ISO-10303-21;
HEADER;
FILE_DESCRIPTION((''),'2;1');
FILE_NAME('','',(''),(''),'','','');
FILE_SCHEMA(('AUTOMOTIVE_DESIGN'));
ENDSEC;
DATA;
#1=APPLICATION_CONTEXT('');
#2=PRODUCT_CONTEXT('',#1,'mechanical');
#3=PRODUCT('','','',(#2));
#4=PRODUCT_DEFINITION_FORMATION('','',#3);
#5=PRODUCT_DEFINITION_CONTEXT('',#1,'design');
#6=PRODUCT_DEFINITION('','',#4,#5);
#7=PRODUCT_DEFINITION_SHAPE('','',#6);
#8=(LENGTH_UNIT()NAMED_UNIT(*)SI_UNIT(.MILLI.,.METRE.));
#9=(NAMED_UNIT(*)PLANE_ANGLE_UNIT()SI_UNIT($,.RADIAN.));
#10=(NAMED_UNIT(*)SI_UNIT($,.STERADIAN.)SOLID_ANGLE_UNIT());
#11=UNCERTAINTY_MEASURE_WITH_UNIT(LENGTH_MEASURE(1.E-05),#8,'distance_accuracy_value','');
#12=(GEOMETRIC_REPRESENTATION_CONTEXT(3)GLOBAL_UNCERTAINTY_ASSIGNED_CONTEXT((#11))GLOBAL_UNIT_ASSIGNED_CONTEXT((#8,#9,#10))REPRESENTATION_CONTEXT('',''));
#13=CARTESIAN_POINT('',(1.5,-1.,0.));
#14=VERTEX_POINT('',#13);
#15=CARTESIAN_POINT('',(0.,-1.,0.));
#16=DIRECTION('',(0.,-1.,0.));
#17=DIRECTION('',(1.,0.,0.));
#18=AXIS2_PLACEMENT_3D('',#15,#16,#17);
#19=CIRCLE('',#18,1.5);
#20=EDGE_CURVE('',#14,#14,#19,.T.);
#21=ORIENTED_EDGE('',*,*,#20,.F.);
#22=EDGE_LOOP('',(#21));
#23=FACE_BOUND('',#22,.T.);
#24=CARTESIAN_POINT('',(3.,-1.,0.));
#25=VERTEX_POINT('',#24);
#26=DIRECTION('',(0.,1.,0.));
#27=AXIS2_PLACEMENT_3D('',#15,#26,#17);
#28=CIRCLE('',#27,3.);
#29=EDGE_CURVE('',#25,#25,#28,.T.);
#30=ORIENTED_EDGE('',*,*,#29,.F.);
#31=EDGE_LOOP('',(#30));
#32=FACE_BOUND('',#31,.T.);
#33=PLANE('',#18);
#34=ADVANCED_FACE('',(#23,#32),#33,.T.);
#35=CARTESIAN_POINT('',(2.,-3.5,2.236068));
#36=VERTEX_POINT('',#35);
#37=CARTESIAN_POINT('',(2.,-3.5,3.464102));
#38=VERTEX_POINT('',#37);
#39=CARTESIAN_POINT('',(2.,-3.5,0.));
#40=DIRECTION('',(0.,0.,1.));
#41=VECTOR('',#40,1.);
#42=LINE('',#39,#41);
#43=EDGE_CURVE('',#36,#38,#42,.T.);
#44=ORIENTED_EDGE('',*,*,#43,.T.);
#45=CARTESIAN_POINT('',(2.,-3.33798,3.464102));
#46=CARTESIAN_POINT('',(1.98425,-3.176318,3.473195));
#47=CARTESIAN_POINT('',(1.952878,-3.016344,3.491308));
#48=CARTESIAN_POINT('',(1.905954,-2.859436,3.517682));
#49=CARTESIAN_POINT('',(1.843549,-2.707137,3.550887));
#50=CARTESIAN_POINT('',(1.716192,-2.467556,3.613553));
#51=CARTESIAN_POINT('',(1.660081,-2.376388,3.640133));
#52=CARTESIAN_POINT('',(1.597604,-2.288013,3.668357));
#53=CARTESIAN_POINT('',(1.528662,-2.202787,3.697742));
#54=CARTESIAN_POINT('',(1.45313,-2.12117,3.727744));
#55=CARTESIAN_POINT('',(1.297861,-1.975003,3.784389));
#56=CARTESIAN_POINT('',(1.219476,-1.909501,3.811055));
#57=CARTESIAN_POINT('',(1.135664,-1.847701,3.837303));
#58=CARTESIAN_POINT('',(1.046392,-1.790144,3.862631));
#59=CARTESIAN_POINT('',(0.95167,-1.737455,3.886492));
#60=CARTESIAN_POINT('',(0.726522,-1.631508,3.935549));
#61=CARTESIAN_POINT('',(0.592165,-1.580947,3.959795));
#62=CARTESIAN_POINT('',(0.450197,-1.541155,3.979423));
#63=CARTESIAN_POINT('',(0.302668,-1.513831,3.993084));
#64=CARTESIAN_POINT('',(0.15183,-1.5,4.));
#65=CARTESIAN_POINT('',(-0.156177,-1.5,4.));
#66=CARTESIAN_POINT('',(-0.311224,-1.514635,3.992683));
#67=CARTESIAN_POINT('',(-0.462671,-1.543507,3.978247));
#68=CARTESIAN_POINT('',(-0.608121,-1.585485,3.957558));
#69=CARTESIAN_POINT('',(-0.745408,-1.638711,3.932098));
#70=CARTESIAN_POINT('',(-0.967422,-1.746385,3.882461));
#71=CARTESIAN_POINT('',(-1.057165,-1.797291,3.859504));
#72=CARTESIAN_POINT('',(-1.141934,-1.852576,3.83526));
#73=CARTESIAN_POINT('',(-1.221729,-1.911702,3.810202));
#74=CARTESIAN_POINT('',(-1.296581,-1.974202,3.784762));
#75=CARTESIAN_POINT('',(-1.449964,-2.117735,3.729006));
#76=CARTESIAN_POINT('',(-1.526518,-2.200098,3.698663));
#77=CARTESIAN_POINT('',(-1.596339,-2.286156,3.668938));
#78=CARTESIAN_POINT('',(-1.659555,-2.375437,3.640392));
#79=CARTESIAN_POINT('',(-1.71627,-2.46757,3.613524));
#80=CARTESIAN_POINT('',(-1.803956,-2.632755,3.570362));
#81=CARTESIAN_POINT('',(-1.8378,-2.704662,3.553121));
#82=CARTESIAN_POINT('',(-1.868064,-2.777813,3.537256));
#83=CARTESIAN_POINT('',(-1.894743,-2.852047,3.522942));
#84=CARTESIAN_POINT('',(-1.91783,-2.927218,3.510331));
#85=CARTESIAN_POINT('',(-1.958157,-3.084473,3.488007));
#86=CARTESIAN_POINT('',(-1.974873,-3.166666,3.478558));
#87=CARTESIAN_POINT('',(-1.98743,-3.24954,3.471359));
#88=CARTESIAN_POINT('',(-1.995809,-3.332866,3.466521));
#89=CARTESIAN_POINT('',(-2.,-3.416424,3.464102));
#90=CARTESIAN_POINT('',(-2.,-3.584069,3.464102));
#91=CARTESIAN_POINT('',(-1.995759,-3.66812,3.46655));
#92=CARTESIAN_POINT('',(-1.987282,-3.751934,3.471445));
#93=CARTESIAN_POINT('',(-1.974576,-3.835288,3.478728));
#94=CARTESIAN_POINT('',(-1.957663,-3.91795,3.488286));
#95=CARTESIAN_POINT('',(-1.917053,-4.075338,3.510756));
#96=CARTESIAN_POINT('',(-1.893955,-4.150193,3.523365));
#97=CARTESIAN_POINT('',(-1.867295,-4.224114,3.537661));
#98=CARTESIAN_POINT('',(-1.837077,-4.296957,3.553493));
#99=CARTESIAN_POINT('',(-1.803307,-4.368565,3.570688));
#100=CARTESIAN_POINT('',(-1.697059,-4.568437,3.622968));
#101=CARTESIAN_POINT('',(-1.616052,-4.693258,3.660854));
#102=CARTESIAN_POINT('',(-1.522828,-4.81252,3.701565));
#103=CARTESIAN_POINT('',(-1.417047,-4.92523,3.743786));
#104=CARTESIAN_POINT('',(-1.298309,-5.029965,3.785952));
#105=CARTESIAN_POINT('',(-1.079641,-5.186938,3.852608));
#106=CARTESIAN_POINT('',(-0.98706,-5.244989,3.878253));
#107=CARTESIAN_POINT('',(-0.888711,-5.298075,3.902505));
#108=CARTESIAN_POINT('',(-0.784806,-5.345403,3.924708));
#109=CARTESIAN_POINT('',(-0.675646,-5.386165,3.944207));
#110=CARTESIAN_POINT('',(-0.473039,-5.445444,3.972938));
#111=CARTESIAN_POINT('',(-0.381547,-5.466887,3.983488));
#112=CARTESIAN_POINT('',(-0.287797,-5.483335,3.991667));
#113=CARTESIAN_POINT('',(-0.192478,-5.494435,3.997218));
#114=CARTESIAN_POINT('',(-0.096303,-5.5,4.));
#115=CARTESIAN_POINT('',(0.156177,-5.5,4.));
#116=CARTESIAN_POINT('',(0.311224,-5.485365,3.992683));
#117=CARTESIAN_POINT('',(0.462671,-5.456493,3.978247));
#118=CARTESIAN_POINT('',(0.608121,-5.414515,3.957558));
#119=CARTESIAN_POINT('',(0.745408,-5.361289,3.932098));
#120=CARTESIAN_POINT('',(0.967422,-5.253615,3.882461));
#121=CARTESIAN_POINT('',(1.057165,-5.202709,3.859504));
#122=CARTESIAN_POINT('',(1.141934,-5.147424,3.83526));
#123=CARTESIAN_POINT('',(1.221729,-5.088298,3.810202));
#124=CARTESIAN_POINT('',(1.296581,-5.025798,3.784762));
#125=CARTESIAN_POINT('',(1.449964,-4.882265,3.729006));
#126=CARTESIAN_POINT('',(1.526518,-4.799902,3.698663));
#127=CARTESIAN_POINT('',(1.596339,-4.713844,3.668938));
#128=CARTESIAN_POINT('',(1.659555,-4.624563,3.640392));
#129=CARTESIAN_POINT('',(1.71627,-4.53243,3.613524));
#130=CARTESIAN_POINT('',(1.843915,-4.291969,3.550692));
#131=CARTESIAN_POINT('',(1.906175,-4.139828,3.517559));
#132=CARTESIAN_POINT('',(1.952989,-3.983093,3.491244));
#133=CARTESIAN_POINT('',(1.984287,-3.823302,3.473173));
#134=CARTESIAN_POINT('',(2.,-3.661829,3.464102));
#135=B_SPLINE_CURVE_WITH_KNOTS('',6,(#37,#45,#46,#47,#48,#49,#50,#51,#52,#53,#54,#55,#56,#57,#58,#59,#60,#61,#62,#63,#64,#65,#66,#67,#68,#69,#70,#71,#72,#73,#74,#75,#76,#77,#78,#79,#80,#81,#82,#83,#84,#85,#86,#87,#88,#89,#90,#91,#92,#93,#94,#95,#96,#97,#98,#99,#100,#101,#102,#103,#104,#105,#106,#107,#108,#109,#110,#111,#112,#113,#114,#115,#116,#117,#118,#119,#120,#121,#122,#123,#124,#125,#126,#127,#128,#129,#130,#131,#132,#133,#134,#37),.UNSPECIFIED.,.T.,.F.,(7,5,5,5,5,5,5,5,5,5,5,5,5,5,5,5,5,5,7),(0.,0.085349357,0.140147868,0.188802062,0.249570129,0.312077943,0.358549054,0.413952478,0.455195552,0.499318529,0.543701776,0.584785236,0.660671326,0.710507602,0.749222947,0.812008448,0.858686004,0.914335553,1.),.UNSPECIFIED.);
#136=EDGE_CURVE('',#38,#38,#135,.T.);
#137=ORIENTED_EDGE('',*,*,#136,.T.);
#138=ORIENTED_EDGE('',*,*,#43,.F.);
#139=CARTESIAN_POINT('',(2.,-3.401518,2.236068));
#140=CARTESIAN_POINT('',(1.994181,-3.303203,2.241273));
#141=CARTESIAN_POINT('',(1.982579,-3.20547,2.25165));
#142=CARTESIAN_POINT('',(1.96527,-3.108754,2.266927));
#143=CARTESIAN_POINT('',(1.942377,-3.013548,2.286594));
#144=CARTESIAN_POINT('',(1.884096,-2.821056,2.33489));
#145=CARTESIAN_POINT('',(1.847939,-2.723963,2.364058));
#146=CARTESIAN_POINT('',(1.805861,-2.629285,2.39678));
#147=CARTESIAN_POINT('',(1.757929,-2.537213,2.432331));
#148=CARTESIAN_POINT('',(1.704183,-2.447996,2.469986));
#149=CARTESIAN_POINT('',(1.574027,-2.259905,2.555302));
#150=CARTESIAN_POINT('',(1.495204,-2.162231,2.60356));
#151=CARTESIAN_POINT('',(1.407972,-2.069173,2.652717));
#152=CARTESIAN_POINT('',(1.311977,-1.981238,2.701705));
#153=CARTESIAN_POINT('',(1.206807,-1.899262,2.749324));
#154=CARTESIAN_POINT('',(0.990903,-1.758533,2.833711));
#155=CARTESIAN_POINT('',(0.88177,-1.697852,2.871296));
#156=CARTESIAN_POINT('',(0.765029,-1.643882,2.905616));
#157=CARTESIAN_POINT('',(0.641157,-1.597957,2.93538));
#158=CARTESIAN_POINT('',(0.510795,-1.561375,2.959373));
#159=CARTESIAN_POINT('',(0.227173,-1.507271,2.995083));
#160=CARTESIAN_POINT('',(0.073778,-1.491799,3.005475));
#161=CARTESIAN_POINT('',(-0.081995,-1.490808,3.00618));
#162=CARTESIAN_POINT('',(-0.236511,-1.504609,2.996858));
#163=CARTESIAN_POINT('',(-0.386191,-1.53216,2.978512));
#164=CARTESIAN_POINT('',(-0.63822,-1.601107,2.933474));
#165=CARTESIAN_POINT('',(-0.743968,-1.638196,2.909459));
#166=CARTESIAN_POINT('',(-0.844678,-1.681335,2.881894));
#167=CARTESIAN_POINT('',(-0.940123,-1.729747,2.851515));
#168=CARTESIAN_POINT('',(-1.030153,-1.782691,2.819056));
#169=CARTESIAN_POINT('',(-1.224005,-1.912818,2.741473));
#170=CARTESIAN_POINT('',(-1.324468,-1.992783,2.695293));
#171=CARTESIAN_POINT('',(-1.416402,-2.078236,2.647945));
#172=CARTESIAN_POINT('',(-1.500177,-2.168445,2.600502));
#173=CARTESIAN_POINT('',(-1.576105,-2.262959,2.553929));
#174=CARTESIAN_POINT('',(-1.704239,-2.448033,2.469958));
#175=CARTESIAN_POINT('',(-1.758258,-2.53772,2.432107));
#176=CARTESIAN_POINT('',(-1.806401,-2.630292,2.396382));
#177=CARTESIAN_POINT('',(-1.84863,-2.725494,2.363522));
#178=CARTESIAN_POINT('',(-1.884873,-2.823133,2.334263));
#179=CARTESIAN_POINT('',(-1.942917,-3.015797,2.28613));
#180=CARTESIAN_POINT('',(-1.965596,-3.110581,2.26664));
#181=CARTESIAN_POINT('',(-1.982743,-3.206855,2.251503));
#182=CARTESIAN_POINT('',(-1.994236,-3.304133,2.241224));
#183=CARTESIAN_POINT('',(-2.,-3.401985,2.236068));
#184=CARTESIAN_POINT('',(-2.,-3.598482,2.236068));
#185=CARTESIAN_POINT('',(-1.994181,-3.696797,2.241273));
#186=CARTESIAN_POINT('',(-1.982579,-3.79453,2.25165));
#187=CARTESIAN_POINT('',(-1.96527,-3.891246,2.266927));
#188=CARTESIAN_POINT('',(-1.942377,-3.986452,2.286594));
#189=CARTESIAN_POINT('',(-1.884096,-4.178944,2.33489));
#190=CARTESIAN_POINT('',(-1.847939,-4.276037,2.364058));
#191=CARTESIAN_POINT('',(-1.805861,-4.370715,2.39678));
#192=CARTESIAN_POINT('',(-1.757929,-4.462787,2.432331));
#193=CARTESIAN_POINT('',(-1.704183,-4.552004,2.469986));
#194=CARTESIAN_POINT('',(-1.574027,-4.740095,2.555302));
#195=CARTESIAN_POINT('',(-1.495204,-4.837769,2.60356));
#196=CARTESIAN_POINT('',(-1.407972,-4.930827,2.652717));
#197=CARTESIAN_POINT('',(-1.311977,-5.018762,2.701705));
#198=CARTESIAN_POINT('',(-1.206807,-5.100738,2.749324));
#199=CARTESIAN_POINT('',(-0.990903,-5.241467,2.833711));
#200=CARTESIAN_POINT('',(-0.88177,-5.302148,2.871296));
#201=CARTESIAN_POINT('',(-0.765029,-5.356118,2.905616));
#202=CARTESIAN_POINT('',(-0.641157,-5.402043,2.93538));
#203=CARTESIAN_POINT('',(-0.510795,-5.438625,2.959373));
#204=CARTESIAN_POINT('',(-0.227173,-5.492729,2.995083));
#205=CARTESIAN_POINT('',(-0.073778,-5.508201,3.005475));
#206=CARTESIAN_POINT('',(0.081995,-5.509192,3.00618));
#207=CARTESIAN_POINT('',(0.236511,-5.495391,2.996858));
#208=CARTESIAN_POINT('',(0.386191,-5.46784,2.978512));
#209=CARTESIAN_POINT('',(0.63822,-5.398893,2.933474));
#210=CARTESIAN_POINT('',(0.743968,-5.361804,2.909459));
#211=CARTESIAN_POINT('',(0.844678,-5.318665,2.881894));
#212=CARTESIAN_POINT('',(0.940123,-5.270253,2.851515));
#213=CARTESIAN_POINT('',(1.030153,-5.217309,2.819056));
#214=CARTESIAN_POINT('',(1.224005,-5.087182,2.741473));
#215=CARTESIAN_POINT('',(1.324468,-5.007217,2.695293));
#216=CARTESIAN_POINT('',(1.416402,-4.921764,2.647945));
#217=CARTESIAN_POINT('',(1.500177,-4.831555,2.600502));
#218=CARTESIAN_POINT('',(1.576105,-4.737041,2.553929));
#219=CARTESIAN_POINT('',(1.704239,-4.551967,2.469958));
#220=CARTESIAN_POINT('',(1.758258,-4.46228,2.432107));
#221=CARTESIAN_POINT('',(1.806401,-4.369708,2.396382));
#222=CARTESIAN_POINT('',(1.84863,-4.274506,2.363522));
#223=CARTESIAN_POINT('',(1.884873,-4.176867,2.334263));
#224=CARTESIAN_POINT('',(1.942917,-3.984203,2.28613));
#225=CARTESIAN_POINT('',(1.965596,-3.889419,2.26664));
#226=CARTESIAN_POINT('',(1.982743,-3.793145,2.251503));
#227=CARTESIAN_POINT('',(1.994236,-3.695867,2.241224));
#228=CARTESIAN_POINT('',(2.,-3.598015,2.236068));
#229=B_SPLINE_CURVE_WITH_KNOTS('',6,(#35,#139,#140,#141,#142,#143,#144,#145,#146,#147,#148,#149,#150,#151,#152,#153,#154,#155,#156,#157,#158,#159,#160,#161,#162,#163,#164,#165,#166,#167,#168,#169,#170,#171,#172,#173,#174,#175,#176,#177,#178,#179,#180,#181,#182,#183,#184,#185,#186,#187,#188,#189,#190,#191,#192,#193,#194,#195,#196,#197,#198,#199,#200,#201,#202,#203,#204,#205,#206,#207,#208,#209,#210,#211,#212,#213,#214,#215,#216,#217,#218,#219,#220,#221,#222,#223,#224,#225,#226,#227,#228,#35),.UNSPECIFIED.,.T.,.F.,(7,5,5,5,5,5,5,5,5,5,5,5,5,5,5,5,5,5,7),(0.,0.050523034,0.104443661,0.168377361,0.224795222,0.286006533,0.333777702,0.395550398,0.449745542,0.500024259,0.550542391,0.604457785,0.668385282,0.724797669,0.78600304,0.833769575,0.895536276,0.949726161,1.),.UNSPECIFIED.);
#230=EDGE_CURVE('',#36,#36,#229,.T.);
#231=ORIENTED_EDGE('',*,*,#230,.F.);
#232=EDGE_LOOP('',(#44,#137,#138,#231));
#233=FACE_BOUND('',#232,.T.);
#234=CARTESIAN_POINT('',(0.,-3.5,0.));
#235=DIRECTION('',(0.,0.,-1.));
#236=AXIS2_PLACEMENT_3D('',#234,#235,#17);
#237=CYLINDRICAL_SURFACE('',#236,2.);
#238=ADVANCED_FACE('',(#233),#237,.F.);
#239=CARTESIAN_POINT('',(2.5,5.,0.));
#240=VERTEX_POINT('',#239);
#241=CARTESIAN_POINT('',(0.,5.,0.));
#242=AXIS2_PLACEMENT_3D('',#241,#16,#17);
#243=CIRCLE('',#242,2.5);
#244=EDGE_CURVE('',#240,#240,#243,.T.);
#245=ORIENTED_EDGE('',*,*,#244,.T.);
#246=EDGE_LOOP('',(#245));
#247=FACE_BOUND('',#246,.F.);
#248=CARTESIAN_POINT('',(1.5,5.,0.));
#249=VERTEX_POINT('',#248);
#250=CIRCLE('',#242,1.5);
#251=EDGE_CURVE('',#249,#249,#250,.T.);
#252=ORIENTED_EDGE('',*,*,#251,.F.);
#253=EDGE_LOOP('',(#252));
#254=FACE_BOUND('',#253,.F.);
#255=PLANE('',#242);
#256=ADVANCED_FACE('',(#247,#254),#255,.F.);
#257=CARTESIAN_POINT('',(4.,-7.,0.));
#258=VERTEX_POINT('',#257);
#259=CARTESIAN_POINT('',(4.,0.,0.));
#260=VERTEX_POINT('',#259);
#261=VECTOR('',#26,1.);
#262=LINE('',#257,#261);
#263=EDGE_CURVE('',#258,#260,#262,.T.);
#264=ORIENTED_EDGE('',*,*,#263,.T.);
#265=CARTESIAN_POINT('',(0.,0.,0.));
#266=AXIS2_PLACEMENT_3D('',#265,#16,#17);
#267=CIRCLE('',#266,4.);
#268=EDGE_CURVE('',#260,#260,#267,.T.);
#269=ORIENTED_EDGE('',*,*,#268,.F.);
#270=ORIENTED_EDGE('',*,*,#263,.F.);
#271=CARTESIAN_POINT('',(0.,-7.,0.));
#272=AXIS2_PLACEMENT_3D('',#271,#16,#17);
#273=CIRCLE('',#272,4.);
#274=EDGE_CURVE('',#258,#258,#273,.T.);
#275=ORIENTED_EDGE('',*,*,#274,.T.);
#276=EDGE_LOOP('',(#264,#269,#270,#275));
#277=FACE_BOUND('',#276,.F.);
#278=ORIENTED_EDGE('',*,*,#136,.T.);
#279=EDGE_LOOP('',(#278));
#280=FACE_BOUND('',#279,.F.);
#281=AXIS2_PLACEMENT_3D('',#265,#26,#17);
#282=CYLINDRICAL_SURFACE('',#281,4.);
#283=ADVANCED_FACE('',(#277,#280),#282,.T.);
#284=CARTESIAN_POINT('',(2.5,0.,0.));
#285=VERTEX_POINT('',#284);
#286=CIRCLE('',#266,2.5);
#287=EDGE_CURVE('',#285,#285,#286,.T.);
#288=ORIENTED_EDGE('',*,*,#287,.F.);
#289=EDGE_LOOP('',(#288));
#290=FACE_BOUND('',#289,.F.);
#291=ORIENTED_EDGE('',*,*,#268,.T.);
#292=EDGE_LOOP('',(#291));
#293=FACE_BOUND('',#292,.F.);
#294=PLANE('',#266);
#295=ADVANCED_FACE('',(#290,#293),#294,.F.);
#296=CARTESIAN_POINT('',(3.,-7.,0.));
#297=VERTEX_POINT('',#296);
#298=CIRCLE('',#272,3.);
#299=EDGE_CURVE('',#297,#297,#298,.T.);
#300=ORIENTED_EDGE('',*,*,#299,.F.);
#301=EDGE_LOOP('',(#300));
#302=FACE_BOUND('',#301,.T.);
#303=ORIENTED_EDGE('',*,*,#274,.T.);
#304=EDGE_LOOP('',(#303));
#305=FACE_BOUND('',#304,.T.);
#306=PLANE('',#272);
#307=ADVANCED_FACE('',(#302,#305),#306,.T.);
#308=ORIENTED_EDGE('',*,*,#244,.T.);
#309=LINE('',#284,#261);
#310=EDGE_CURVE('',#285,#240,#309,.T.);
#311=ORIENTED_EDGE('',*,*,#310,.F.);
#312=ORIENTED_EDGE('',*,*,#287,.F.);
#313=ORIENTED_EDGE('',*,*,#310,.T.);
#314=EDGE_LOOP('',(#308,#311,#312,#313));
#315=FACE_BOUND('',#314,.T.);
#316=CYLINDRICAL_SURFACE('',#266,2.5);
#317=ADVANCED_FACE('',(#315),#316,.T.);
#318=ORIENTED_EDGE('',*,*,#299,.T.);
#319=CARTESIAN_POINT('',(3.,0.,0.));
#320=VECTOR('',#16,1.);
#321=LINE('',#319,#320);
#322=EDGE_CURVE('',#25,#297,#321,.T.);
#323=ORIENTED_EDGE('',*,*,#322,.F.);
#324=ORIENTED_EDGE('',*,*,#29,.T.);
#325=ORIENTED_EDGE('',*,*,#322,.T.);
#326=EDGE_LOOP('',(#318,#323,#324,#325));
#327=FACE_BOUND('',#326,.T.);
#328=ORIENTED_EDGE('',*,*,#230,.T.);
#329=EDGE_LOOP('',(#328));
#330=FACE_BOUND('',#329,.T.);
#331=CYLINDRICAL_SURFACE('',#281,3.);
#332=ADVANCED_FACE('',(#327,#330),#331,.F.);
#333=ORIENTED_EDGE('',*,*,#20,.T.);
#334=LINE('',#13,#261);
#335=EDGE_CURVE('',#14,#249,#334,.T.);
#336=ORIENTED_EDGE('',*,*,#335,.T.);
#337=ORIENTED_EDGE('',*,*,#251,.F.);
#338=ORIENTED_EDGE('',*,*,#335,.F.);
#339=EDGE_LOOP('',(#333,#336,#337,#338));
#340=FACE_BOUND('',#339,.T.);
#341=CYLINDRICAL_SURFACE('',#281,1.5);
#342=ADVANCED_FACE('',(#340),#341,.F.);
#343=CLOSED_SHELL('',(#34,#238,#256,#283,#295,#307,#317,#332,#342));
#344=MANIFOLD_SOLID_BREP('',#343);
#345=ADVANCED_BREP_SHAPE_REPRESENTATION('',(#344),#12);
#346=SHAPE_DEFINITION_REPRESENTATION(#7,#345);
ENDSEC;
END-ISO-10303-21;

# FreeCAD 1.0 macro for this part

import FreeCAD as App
import Part
import Sketcher
Q = App.Units.Quantity

doc = App.newDocument("Part")
body = doc.addObject("PartDesign::Body", "Body")

sketch1 = body.newObject("Sketcher::SketchObject", "Sketch")
sketch1.AttachmentSupport = (doc.getObject("XZ_Plane"), [""])
sketch1.MapMode = "FlatFace"
sketch1.addGeometry([
    Part.Circle(App.Vector(0, 0, 0), App.Vector(0, 0, 1), 2.5),
    Part.Circle(App.Vector(0, 0, 0), App.Vector(0, 0, 1), 1.5),
], False)
sketch1.addConstraint([
    Sketcher.Constraint("Coincident", 0, 3, -1, 1),
    Sketcher.Constraint("Coincident", 1, 3, -1, 1),
    Sketcher.Constraint("Diameter", 0, Q("5 mm")),
    Sketcher.Constraint("Diameter", 1, Q("3 mm")),
])
pad1 = body.newObject("PartDesign::Pad", "Pad")
pad1.Profile = sketch1
pad1.Length = 5
pad1.Reversed = True

sketch2 = body.newObject("Sketcher::SketchObject", "Sketch001")
sketch2.AttachmentSupport = (doc.getObject("XZ_Plane"), [""])
sketch2.MapMode = "FlatFace"
sketch2.addGeometry([
    Part.Circle(App.Vector(0, 0, 0), App.Vector(0, 0, 1), 4),
    Part.Circle(App.Vector(0, 0, 0), App.Vector(0, 0, 1), 1.5),
], False)
sketch2.addConstraint([
    Sketcher.Constraint("Coincident", 0, 3, -1, 1),
    Sketcher.Constraint("Coincident", 1, 3, -1, 1),
    Sketcher.Constraint("Diameter", 0, Q("8 mm")),
    Sketcher.Constraint("Diameter", 1, Q("3 mm")),
])
pad2 = body.newObject("PartDesign::Pad", "Pad001")
pad2.Profile = sketch2
pad2.Length = 1

sketch3 = body.newObject("Sketcher::SketchObject", "Sketch002")
sketch3.AttachmentSupport = (doc.getObject("XZ_Plane"), [""])
sketch3.MapMode = "FlatFace"
sketch3.addGeometry([
    Part.Circle(App.Vector(0, 0, 0), App.Vector(0, 0, 1), 4),
    Part.Circle(App.Vector(0, 0, 0), App.Vector(0, 0, 1), 3),
], False)
sketch3.addConstraint([
    Sketcher.Constraint("Coincident", 0, 3, -1, 1),
    Sketcher.Constraint("Coincident", 1, 3, -1, 1),
    Sketcher.Constraint("Diameter", 0, Q("8 mm")),
    Sketcher.Constraint("Diameter", 1, Q("6 mm")),
])
pad3 = body.newObject("PartDesign::Pad", "Pad002")
pad3.Profile = sketch3
pad3.Length = 7

sketch4 = body.newObject("Sketcher::SketchObject", "Sketch003")
sketch4.AttachmentSupport = (doc.getObject("XY_Plane"), [""])
sketch4.MapMode = "FlatFace"
sketch4.addGeometry(Part.Circle(App.Vector(0, -3.5, 0), App.Vector(0, 0, 1), 2), False)
sketch4.addConstraint([
    Sketcher.Constraint("PointOnObject", 0, 3, -2),
    Sketcher.Constraint("Diameter", 0, Q("4 mm")),
    Sketcher.Constraint("DistanceY", 0, 3, -1, 1, Q("3.5 mm")),
])
pocket1 = body.newObject("PartDesign::Pocket", "Pocket")
pocket1.Profile = sketch4
pocket1.Length = 25
pocket1.Reversed = True

doc.recompute()
